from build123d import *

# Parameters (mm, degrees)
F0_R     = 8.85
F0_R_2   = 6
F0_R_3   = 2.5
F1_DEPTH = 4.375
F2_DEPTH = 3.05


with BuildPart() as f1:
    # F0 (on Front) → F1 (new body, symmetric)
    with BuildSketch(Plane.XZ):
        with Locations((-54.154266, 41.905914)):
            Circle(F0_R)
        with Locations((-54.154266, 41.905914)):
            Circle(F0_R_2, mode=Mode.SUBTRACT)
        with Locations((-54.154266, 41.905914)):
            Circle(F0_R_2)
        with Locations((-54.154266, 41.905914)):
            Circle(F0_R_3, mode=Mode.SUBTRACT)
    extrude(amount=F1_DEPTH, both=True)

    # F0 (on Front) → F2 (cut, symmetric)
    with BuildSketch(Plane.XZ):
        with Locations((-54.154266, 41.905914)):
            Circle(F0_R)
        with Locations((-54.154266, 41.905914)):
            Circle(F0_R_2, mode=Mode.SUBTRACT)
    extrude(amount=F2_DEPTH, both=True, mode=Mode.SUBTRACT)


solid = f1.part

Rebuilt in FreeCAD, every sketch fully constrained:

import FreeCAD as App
import Part
import Sketcher
from FreeCAD import Vector

doc = App.newDocument("Part")
body = doc.addObject("PartDesign::Body", "Body")

sketch1 = body.newObject("Sketcher::SketchObject", "Sketch")
sketch1.AttachmentSupport = (doc.getObject("XZ_Plane"), [""])
sketch1.MapMode = "FlatFace"
sketch1.addGeometry([
    Part.Circle(Vector(-54.154266, 41.905914, 0), Vector(0, 0, 1), 8.85),
    Part.Circle(Vector(-54.154266, 41.905914, 0), Vector(0, 0, 1), 2.5),
], False)
sketch1.addConstraint([
    Sketcher.Constraint("Coincident", 1, 3, 0, 3),
    Sketcher.Constraint("Diameter", 1, 5.0),
    Sketcher.Constraint("Diameter", 0, 17.7),
    Sketcher.Constraint("DistanceX", 0, 3, -1, 1, 54.154266),
    Sketcher.Constraint("DistanceY", -1, 1, 0, 3, 41.905914),
])
pad1 = body.newObject("PartDesign::Pad", "Pad")
pad1.Profile = sketch1
pad1.Length = 8.75
pad1.Midplane = True

sketch2 = body.newObject("Sketcher::SketchObject", "Sketch001")
sketch2.AttachmentSupport = (doc.getObject("XZ_Plane"), [""])
sketch2.MapMode = "FlatFace"
sketch2.addGeometry([
    Part.Circle(Vector(-54.154266, 41.905914, 0), Vector(0, 0, 1), 8.85),
    Part.Circle(Vector(-54.154266, 41.905914, 0), Vector(0, 0, 1), 6),
], False)
sketch2.addConstraint([
    Sketcher.Constraint("Coincident", 1, 3, 0, 3),
    Sketcher.Constraint("Diameter", 1, 12.0),
    Sketcher.Constraint("Diameter", 0, 17.7),
    Sketcher.Constraint("DistanceX", 0, 3, -1, 1, 54.154266),
    Sketcher.Constraint("DistanceY", -1, 1, 0, 3, 41.905914),
])
pocket1 = body.newObject("PartDesign::Pocket", "Pocket")
pocket1.Profile = sketch2
pocket1.Length = 6.1
pocket1.Midplane = True

doc.recompute()
